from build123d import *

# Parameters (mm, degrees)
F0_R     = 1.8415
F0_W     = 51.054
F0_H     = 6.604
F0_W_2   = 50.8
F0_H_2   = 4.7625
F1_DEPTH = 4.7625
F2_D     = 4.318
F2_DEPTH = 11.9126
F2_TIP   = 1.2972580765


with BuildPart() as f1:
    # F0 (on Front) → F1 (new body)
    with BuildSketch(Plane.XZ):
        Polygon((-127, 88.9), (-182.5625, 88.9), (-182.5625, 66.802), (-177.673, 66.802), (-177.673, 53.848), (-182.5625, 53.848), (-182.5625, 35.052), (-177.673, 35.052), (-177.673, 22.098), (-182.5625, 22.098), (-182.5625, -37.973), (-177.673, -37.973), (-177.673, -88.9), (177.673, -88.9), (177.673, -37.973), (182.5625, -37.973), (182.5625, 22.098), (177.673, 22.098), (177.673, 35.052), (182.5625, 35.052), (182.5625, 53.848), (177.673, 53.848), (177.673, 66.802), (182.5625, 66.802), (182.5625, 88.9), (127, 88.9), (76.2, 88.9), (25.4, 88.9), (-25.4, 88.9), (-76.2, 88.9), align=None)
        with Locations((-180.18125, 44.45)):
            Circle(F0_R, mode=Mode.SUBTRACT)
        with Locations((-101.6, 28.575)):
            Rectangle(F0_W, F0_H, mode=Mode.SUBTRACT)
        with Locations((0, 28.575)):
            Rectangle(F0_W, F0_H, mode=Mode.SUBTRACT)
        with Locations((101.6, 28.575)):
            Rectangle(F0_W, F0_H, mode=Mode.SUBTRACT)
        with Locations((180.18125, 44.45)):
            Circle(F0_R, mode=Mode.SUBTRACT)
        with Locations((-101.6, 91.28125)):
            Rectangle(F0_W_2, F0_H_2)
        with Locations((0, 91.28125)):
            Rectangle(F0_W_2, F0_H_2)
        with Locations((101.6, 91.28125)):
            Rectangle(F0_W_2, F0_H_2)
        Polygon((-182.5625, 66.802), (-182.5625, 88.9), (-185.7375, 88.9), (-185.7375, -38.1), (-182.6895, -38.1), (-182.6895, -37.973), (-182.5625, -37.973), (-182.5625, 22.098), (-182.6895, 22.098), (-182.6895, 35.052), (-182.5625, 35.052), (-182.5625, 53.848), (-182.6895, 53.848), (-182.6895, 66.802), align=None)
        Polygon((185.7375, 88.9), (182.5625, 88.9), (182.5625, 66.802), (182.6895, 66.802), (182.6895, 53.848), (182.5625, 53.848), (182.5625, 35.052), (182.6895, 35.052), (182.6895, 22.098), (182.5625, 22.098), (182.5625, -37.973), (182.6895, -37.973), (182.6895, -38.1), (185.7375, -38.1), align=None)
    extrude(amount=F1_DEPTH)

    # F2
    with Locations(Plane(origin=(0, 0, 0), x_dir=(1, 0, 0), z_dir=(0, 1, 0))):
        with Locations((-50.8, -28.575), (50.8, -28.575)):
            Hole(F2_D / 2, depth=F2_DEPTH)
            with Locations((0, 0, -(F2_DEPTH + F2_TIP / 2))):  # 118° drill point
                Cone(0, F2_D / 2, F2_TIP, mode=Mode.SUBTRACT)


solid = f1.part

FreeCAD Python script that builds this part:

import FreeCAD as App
import Part
import Sketcher
Q = App.Units.Quantity

doc = App.newDocument("Part")
body = doc.addObject("PartDesign::Body", "Body")

sketch1 = body.newObject("Sketcher::SketchObject", "Sketch")
sketch1.AttachmentSupport = (doc.getObject("XZ_Plane"), [""])
sketch1.MapMode = "FlatFace"
sketch1.addGeometry(Part.LineSegment(App.Vector(-177.673, -37.973, 0), App.Vector(-177.673, -88.9, 0)), False)
sketch1.addGeometry(Part.LineSegment(App.Vector(-177.673, -88.9, 0), App.Vector(177.673, -88.9, 0)), False)
sketch1.addGeometry(Part.LineSegment(App.Vector(177.673, -88.9, 0), App.Vector(177.673, -37.973, 0)), False)
sketch1.addGeometry(Part.LineSegment(App.Vector(177.673, -37.973, 0), App.Vector(182.6895, -37.973, 0)), False)
sketch1.addGeometry(Part.LineSegment(App.Vector(182.6895, -37.973, 0), App.Vector(182.6895, -38.1, 0)), False)
sketch1.addGeometry(Part.LineSegment(App.Vector(182.6895, -38.1, 0), App.Vector(185.7375, -38.1, 0)), False)
sketch1.addGeometry(Part.LineSegment(App.Vector(185.7375, -38.1, 0), App.Vector(185.7375, 88.9, 0)), False)
sketch1.addGeometry(Part.LineSegment(App.Vector(185.7375, 88.9, 0), App.Vector(127, 88.9, 0)), False)
sketch1.addGeometry(Part.LineSegment(App.Vector(127, 88.9, 0), App.Vector(127, 93.6625, 0)), False)
sketch1.addGeometry(Part.LineSegment(App.Vector(127, 93.6625, 0), App.Vector(76.2, 93.6625, 0)), False)
sketch1.addGeometry(Part.LineSegment(App.Vector(76.2, 93.6625, 0), App.Vector(76.2, 88.9, 0)), False)
sketch1.addGeometry(Part.LineSegment(App.Vector(76.2, 88.9, 0), App.Vector(25.4, 88.9, 0)), False)
sketch1.addGeometry(Part.LineSegment(App.Vector(25.4, 88.9, 0), App.Vector(25.4, 93.6625, 0)), False)
sketch1.addGeometry(Part.LineSegment(App.Vector(25.4, 93.6625, 0), App.Vector(-25.4, 93.6625, 0)), False)
sketch1.addGeometry(Part.LineSegment(App.Vector(-25.4, 93.6625, 0), App.Vector(-25.4, 88.9, 0)), False)
sketch1.addGeometry(Part.LineSegment(App.Vector(-25.4, 88.9, 0), App.Vector(-76.2, 88.9, 0)), False)
sketch1.addGeometry(Part.LineSegment(App.Vector(-76.2, 88.9, 0), App.Vector(-76.2, 93.6625, 0)), False)
sketch1.addGeometry(Part.LineSegment(App.Vector(-76.2, 93.6625, 0), App.Vector(-127, 93.6625, 0)), False)
sketch1.addGeometry(Part.LineSegment(App.Vector(-127, 93.6625, 0), App.Vector(-127, 88.9, 0)), False)
sketch1.addGeometry(Part.LineSegment(App.Vector(-127, 88.9, 0), App.Vector(-185.7375, 88.9, 0)), False)
sketch1.addGeometry(Part.LineSegment(App.Vector(-185.7375, 88.9, 0), App.Vector(-185.7375, -38.1, 0)), False)
sketch1.addGeometry(Part.LineSegment(App.Vector(-185.7375, -38.1, 0), App.Vector(-182.6895, -38.1, 0)), False)
sketch1.addGeometry(Part.LineSegment(App.Vector(-182.6895, -38.1, 0), App.Vector(-182.6895, -37.973, 0)), False)
sketch1.addGeometry(Part.LineSegment(App.Vector(-182.6895, -37.973, 0), App.Vector(-177.673, -37.973, 0)), False)
sketch1.addGeometry(Part.LineSegment(App.Vector(-177.673, 66.802, 0), App.Vector(-177.673, 53.848, 0)), False)
sketch1.addGeometry(Part.LineSegment(App.Vector(-177.673, 53.848, 0), App.Vector(-182.6895, 53.848, 0)), False)
sketch1.addGeometry(Part.LineSegment(App.Vector(-182.6895, 53.848, 0), App.Vector(-182.6895, 66.802, 0)), False)
sketch1.addGeometry(Part.LineSegment(App.Vector(-182.6895, 66.802, 0), App.Vector(-177.673, 66.802, 0)), False)
sketch1.addGeometry(Part.LineSegment(App.Vector(-177.673, 35.052, 0), App.Vector(-177.673, 22.098, 0)), False)
sketch1.addGeometry(Part.LineSegment(App.Vector(-177.673, 22.098, 0), App.Vector(-182.6895, 22.098, 0)), False)
sketch1.addGeometry(Part.LineSegment(App.Vector(-182.6895, 22.098, 0), App.Vector(-182.6895, 35.052, 0)), False)
sketch1.addGeometry(Part.LineSegment(App.Vector(-182.6895, 35.052, 0), App.Vector(-177.673, 35.052, 0)), False)
sketch1.addGeometry(Part.LineSegment(App.Vector(177.673, 22.098, 0), App.Vector(177.673, 35.052, 0)), False)
sketch1.addGeometry(Part.LineSegment(App.Vector(177.673, 35.052, 0), App.Vector(182.6895, 35.052, 0)), False)
sketch1.addGeometry(Part.LineSegment(App.Vector(182.6895, 35.052, 0), App.Vector(182.6895, 22.098, 0)), False)
sketch1.addGeometry(Part.LineSegment(App.Vector(182.6895, 22.098, 0), App.Vector(177.673, 22.098, 0)), False)
sketch1.addGeometry(Part.LineSegment(App.Vector(177.673, 53.848, 0), App.Vector(177.673, 66.802, 0)), False)
sketch1.addGeometry(Part.LineSegment(App.Vector(177.673, 66.802, 0), App.Vector(182.6895, 66.802, 0)), False)
sketch1.addGeometry(Part.LineSegment(App.Vector(182.6895, 66.802, 0), App.Vector(182.6895, 53.848, 0)), False)
sketch1.addGeometry(Part.LineSegment(App.Vector(182.6895, 53.848, 0), App.Vector(177.673, 53.848, 0)), False)
sketch1.addGeometry(Part.LineSegment(App.Vector(-76.073, 25.273, 0), App.Vector(-127.127, 25.273, 0)), False)
sketch1.addGeometry(Part.LineSegment(App.Vector(-127.127, 25.273, 0), App.Vector(-127.127, 31.877, 0)), False)
sketch1.addGeometry(Part.LineSegment(App.Vector(-127.127, 31.877, 0), App.Vector(-76.073, 31.877, 0)), False)
sketch1.addGeometry(Part.LineSegment(App.Vector(-76.073, 31.877, 0), App.Vector(-76.073, 25.273, 0)), False)
sketch1.addGeometry(Part.LineSegment(App.Vector(25.527, 25.273, 0), App.Vector(-25.527, 25.273, 0)), False)
sketch1.addGeometry(Part.LineSegment(App.Vector(-25.527, 25.273, 0), App.Vector(-25.527, 31.877, 0)), False)
sketch1.addGeometry(Part.LineSegment(App.Vector(-25.527, 31.877, 0), App.Vector(25.527, 31.877, 0)), False)
sketch1.addGeometry(Part.LineSegment(App.Vector(25.527, 31.877, 0), App.Vector(25.527, 25.273, 0)), False)
sketch1.addGeometry(Part.LineSegment(App.Vector(127.127, 25.273, 0), App.Vector(76.073, 25.273, 0)), False)
sketch1.addGeometry(Part.LineSegment(App.Vector(76.073, 25.273, 0), App.Vector(76.073, 31.877, 0)), False)
sketch1.addGeometry(Part.LineSegment(App.Vector(76.073, 31.877, 0), App.Vector(127.127, 31.877, 0)), False)
sketch1.addGeometry(Part.LineSegment(App.Vector(127.127, 31.877, 0), App.Vector(127.127, 25.273, 0)), False)
sketch1.addGeometry(Part.Circle(App.Vector(-180.18125, 44.45, 0), App.Vector(0, 0, 1), 1.8415), False)
sketch1.addGeometry(Part.Circle(App.Vector(180.18125, 44.45, 0), App.Vector(0, 0, 1), 1.8415), False)
sketch1.addConstraint(Sketcher.Constraint("Coincident", 0, 2, 1, 1))
sketch1.addConstraint(Sketcher.Constraint("Coincident", 1, 2, 2, 1))
sketch1.addConstraint(Sketcher.Constraint("Coincident", 2, 2, 3, 1))
sketch1.addConstraint(Sketcher.Constraint("Coincident", 3, 2, 4, 1))
sketch1.addConstraint(Sketcher.Constraint("Coincident", 4, 2, 5, 1))
sketch1.addConstraint(Sketcher.Constraint("Coincident", 5, 2, 6, 1))
sketch1.addConstraint(Sketcher.Constraint("Coincident", 6, 2, 7, 1))
sketch1.addConstraint(Sketcher.Constraint("Coincident", 7, 2, 8, 1))
sketch1.addConstraint(Sketcher.Constraint("Coincident", 8, 2, 9, 1))
sketch1.addConstraint(Sketcher.Constraint("Coincident", 9, 2, 10, 1))
sketch1.addConstraint(Sketcher.Constraint("Coincident", 10, 2, 11, 1))
sketch1.addConstraint(Sketcher.Constraint("Coincident", 11, 2, 12, 1))
sketch1.addConstraint(Sketcher.Constraint("Coincident", 12, 2, 13, 1))
sketch1.addConstraint(Sketcher.Constraint("Coincident", 13, 2, 14, 1))
sketch1.addConstraint(Sketcher.Constraint("Coincident", 14, 2, 15, 1))
sketch1.addConstraint(Sketcher.Constraint("Coincident", 15, 2, 16, 1))
sketch1.addConstraint(Sketcher.Constraint("Coincident", 16, 2, 17, 1))
sketch1.addConstraint(Sketcher.Constraint("Coincident", 17, 2, 18, 1))
sketch1.addConstraint(Sketcher.Constraint("Coincident", 18, 2, 19, 1))
sketch1.addConstraint(Sketcher.Constraint("Coincident", 19, 2, 20, 1))
sketch1.addConstraint(Sketcher.Constraint("Coincident", 20, 2, 21, 1))
sketch1.addConstraint(Sketcher.Constraint("Coincident", 21, 2, 22, 1))
sketch1.addConstraint(Sketcher.Constraint("Coincident", 22, 2, 23, 1))
sketch1.addConstraint(Sketcher.Constraint("Coincident", 23, 2, 0, 1))
sketch1.addConstraint(Sketcher.Constraint("Coincident", 24, 2, 25, 1))
sketch1.addConstraint(Sketcher.Constraint("Coincident", 25, 2, 26, 1))
sketch1.addConstraint(Sketcher.Constraint("Coincident", 26, 2, 27, 1))
sketch1.addConstraint(Sketcher.Constraint("Coincident", 27, 2, 24, 1))
sketch1.addConstraint(Sketcher.Constraint("Coincident", 28, 2, 29, 1))
sketch1.addConstraint(Sketcher.Constraint("Coincident", 29, 2, 30, 1))
sketch1.addConstraint(Sketcher.Constraint("Coincident", 30, 2, 31, 1))
sketch1.addConstraint(Sketcher.Constraint("Coincident", 31, 2, 28, 1))
sketch1.addConstraint(Sketcher.Constraint("Coincident", 32, 2, 33, 1))
sketch1.addConstraint(Sketcher.Constraint("Coincident", 33, 2, 34, 1))
sketch1.addConstraint(Sketcher.Constraint("Coincident", 34, 2, 35, 1))
sketch1.addConstraint(Sketcher.Constraint("Coincident", 35, 2, 32, 1))
sketch1.addConstraint(Sketcher.Constraint("Coincident", 36, 2, 37, 1))
sketch1.addConstraint(Sketcher.Constraint("Coincident", 37, 2, 38, 1))
sketch1.addConstraint(Sketcher.Constraint("Coincident", 38, 2, 39, 1))
sketch1.addConstraint(Sketcher.Constraint("Coincident", 39, 2, 36, 1))
sketch1.addConstraint(Sketcher.Constraint("Coincident", 40, 2, 41, 1))
sketch1.addConstraint(Sketcher.Constraint("Coincident", 41, 2, 42, 1))
sketch1.addConstraint(Sketcher.Constraint("Coincident", 42, 2, 43, 1))
sketch1.addConstraint(Sketcher.Constraint("Coincident", 43, 2, 40, 1))
sketch1.addConstraint(Sketcher.Constraint("Coincident", 44, 2, 45, 1))
sketch1.addConstraint(Sketcher.Constraint("Coincident", 45, 2, 46, 1))
sketch1.addConstraint(Sketcher.Constraint("Coincident", 46, 2, 47, 1))
sketch1.addConstraint(Sketcher.Constraint("Coincident", 47, 2, 44, 1))
sketch1.addConstraint(Sketcher.Constraint("Coincident", 48, 2, 49, 1))
sketch1.addConstraint(Sketcher.Constraint("Coincident", 49, 2, 50, 1))
sketch1.addConstraint(Sketcher.Constraint("Coincident", 50, 2, 51, 1))
sketch1.addConstraint(Sketcher.Constraint("Coincident", 51, 2, 48, 1))
sketch1.addConstraint(Sketcher.Constraint("Vertical", 0))
sketch1.addConstraint(Sketcher.Constraint("Horizontal", 1))
sketch1.addConstraint(Sketcher.Constraint("Vertical", 2))
sketch1.addConstraint(Sketcher.Constraint("Horizontal", 3))
sketch1.addConstraint(Sketcher.Constraint("Vertical", 4))
sketch1.addConstraint(Sketcher.Constraint("Horizontal", 5))
sketch1.addConstraint(Sketcher.Constraint("Vertical", 6))
sketch1.addConstraint(Sketcher.Constraint("Horizontal", 7))
sketch1.addConstraint(Sketcher.Constraint("Vertical", 8))
sketch1.addConstraint(Sketcher.Constraint("Horizontal", 9))
sketch1.addConstraint(Sketcher.Constraint("Vertical", 10))
sketch1.addConstraint(Sketcher.Constraint("Horizontal", 11))
sketch1.addConstraint(Sketcher.Constraint("Vertical", 12))
sketch1.addConstraint(Sketcher.Constraint("Horizontal", 13))
sketch1.addConstraint(Sketcher.Constraint("Vertical", 14))
sketch1.addConstraint(Sketcher.Constraint("Horizontal", 15))
sketch1.addConstraint(Sketcher.Constraint("Vertical", 16))
sketch1.addConstraint(Sketcher.Constraint("Horizontal", 17))
sketch1.addConstraint(Sketcher.Constraint("Vertical", 18))
sketch1.addConstraint(Sketcher.Constraint("Horizontal", 19))
sketch1.addConstraint(Sketcher.Constraint("Vertical", 20))
sketch1.addConstraint(Sketcher.Constraint("Horizontal", 21))
sketch1.addConstraint(Sketcher.Constraint("Vertical", 22))
sketch1.addConstraint(Sketcher.Constraint("Horizontal", 23))
sketch1.addConstraint(Sketcher.Constraint("Vertical", 24))
sketch1.addConstraint(Sketcher.Constraint("Horizontal", 25))
sketch1.addConstraint(Sketcher.Constraint("Vertical", 26))
sketch1.addConstraint(Sketcher.Constraint("Horizontal", 27))
sketch1.addConstraint(Sketcher.Constraint("Vertical", 28))
sketch1.addConstraint(Sketcher.Constraint("Horizontal", 29))
sketch1.addConstraint(Sketcher.Constraint("Vertical", 30))
sketch1.addConstraint(Sketcher.Constraint("Horizontal", 31))
sketch1.addConstraint(Sketcher.Constraint("Vertical", 32))
sketch1.addConstraint(Sketcher.Constraint("Horizontal", 33))
sketch1.addConstraint(Sketcher.Constraint("Vertical", 34))
sketch1.addConstraint(Sketcher.Constraint("Horizontal", 35))
sketch1.addConstraint(Sketcher.Constraint("Vertical", 36))
sketch1.addConstraint(Sketcher.Constraint("Horizontal", 37))
sketch1.addConstraint(Sketcher.Constraint("Vertical", 38))
sketch1.addConstraint(Sketcher.Constraint("Horizontal", 39))
sketch1.addConstraint(Sketcher.Constraint("Horizontal", 40))
sketch1.addConstraint(Sketcher.Constraint("Vertical", 41))
sketch1.addConstraint(Sketcher.Constraint("Horizontal", 42))
sketch1.addConstraint(Sketcher.Constraint("Vertical", 43))
sketch1.addConstraint(Sketcher.Constraint("Horizontal", 44))
sketch1.addConstraint(Sketcher.Constraint("Vertical", 45))
sketch1.addConstraint(Sketcher.Constraint("Horizontal", 46))
sketch1.addConstraint(Sketcher.Constraint("Vertical", 47))
sketch1.addConstraint(Sketcher.Constraint("Horizontal", 48))
sketch1.addConstraint(Sketcher.Constraint("Vertical", 49))
sketch1.addConstraint(Sketcher.Constraint("Horizontal", 50))
sketch1.addConstraint(Sketcher.Constraint("Vertical", 51))
sketch1.addConstraint(Sketcher.Constraint("Equal", 52, 53))
sketch1.addConstraint(Sketcher.Constraint("Symmetric", 52, 3, 53, 3, -2))
sketch1.addConstraint(Sketcher.Constraint("Symmetric", 11, 2, 14, 2, -2))
sketch1.addConstraint(Sketcher.Constraint("Symmetric", 9, 2, 16, 2, -2))
sketch1.addConstraint(Sketcher.Constraint("Symmetric", 7, 2, 18, 2, -2))
sketch1.addConstraint(Sketcher.Constraint("Symmetric", 5, 2, 20, 2, -2))
sketch1.addConstraint(Sketcher.Constraint("Symmetric", 3, 2, 22, 2, -2))
sketch1.addConstraint(Sketcher.Constraint("Symmetric", 31, 2, 32, 2, -2))
sketch1.addConstraint(Sketcher.Constraint("Symmetric", 29, 2, 34, 2, -2))
sketch1.addConstraint(Sketcher.Constraint("Symmetric", 27, 2, 36, 2, -2))
sketch1.addConstraint(Sketcher.Constraint("Symmetric", 25, 2, 38, 2, -2))
sketch1.addConstraint(Sketcher.Constraint("Symmetric", 43, 2, 48, 2, -2))
sketch1.addConstraint(Sketcher.Constraint("Symmetric", 41, 2, 50, 2, -2))
sketch1.addConstraint(Sketcher.Constraint("Horizontal", 7, 2, 10, 2))
sketch1.addConstraint(Sketcher.Constraint("Horizontal", 9, 2, 12, 2))
sketch1.addConstraint(Sketcher.Constraint("Horizontal", 43, 2, 44, 2))
sketch1.addConstraint(Sketcher.Constraint("Horizontal", 42, 2, 45, 2))
sketch1.addConstraint(Sketcher.Constraint("Vertical", 23, 2, 24, 2))
sketch1.addConstraint(Sketcher.Constraint("Vertical", 22, 2, 25, 2))
sketch1.addConstraint(Sketcher.Constraint("Vertical", 27, 2, 28, 2))
sketch1.addConstraint(Sketcher.Constraint("Vertical", 26, 2, 29, 2))
sketch1.addConstraint(Sketcher.Constraint("Vertical", 2, 2, 32, 2))
sketch1.addConstraint(Sketcher.Constraint("Equal", 9, 11))
sketch1.addConstraint(Sketcher.Constraint("Equal", 11, 13))
sketch1.addConstraint(Sketcher.Constraint("Equal", 42, 44))
sketch1.addConstraint(Sketcher.Constraint("Equal", 26, 28))
sketch1.addConstraint(Sketcher.Constraint("DistanceX", 9, 2, 9, 1, Q("2 in")))
sketch1.addConstraint(Sketcher.Constraint("DistanceY", 6, 1, 6, 2, Q("5 in")))
sketch1.addConstraint(Sketcher.Constraint("Diameter", 52, Q("0.145 in")))
sketch1.addConstraint(Sketcher.Constraint("DistanceY", 1, 2, 4, 2, Q("2 in")))
sketch1.addConstraint(Sketcher.Constraint("DistanceX", 1, 1, 1, 2, Q("13.99 in")))
sketch1.addConstraint(Sketcher.Constraint("DistanceX", 5, 1, 5, 2, Q("0.12 in")))
sketch1.addConstraint(Sketcher.Constraint("DistanceX", 40, 2, 40, 1, Q("2.01 in")))
sketch1.addConstraint(Sketcher.Constraint("DistanceY", 24, 2, 24, 1, Q("0.51 in")))
sketch1.addConstraint(Sketcher.Constraint("DistanceY", 41, 1, 41, 2, Q("0.26 in")))
sketch1.addConstraint(Sketcher.Constraint("DistanceY", 0, 2, -1, 1, Q("3.5 in")))
sketch1.addConstraint(Sketcher.Constraint("DistanceX", 7, 2, 7, 1, Q("2.3125 in")))
sketch1.addConstraint(Sketcher.Constraint("DistanceY", 0, 2, 0, 1, Q("2.005 in")))
sketch1.addConstraint(Sketcher.Constraint("DistanceY", 8, 1, 8, 2, Q("0.1875 in")))
sketch1.addConstraint(Sketcher.Constraint("DistanceY", -1, 1, 52, 3, Q("1.75 in")))
sketch1.addConstraint(Sketcher.Constraint("DistanceY", -1, 1, 24, 2, Q("2.12 in")))
sketch1.addConstraint(Sketcher.Constraint("DistanceY", -1, 1, 28, 2, Q("0.87 in")))
sketch1.addConstraint(Sketcher.Constraint("DistanceX", 28, 2, 40, 2, Q("1.99 in")))
sketch1.addConstraint(Sketcher.Constraint("DistanceX", 43, 2, 44, 2, Q("1.99 in")))
sketch1.addConstraint(Sketcher.Constraint("DistanceX", 52, 3, -1, 1, Q("7.09375 in")))
sketch1.addConstraint(Sketcher.Constraint("DistanceY", -1, 1, 40, 2, Q("0.995 in")))
pad1 = body.newObject("PartDesign::Pad", "Pad")
pad1.Profile = sketch1
pad1.Length = Q("0.1875 in")

sketch2 = body.newObject("Sketcher::SketchObject", "Sketch001")
sketch2.AttachmentSupport = (doc.getObject("XZ_Plane"), [""])
sketch2.MapMode = "FlatFace"
sketch2.addGeometry(Part.Circle(App.Vector(-50.8, 28.575, 0), App.Vector(0, 0, 1), 2.159), False)
sketch2.addGeometry(Part.Circle(App.Vector(50.8, 28.575, 0), App.Vector(0, 0, 1), 2.159), False)
sketch2.addConstraint(Sketcher.Constraint("Equal", 0, 1))
sketch2.addConstraint(Sketcher.Constraint("Symmetric", 0, 3, 1, 3, -2))
sketch2.addConstraint(Sketcher.Constraint("Diameter", 0, Q("0.17 in")))
sketch2.addConstraint(Sketcher.Constraint("DistanceX", 0, 3, -1, 1, Q("2 in")))
sketch2.addConstraint(Sketcher.Constraint("DistanceY", -1, 1, 0, 3, Q("1.125 in")))
doc.recompute()
hole = body.newObject("PartDesign::Hole", "Hole")
hole.Profile = sketch2
hole.ThreadType = "None"
hole.Diameter = Q("0.17 in")
hole.DepthType = "Dimension"
hole.Depth = Q("0.469 in")
hole.DrillPoint = "Angled"
hole.DrillPointAngle = 118
hole.Reversed = True

doc.recompute()
